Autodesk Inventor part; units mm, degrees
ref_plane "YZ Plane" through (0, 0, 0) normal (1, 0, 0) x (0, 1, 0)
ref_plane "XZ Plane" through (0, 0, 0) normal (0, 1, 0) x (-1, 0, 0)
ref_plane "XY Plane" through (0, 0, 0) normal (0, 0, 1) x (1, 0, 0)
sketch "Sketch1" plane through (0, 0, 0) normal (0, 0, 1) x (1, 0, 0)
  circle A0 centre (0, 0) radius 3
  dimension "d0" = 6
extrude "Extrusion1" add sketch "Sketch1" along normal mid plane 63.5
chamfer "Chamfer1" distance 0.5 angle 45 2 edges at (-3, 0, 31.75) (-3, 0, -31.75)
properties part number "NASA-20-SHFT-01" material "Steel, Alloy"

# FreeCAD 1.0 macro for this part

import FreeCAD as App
import Part
import Sketcher
from FreeCAD import Vector
Q = App.Units.Quantity


def edges_at(feature, points):
    """Names of the edges that pass closest to the given points."""
    edges = feature.Shape.Edges
    near = lambda p: min(range(len(edges)), key=lambda i: edges[i].distToShape(Part.Vertex(*p))[0])
    return sorted({f"Edge{near(p) + 1}" for p in points})

doc = App.newDocument("Part")
params = doc.addObject("Spreadsheet::Sheet", "Params")
for row, (alias, value) in enumerate([
    ("sketch1_diameter", "6 mm"),
    ("pad1_length", "63.5 mm"),
    ("chamfer_size", "0.5 mm"),
], start=1):
    params.set(f"A{row}", alias)
    params.set(f"B{row}", "=" + value)
    params.setAlias(f"B{row}", alias)

body = doc.addObject("PartDesign::Body", "Body")

sketch1 = body.newObject("Sketcher::SketchObject", "Sketch")
sketch1.AttachmentSupport = (doc.getObject("XY_Plane"), [""])
sketch1.MapMode = "FlatFace"
sketch1.addGeometry(Part.Circle(Vector(0, 0, 0), Vector(0, 0, 1), 3), False)
sketch1.addConstraint([
    Sketcher.Constraint("Coincident", 0, 3, -1, 1),
    Sketcher.Constraint("Diameter", 0, Q("6 mm")),
])
sketch1.setExpression("Constraints[1]", "Params.sketch1_diameter")
pad1 = body.newObject("PartDesign::Pad", "Pad")
pad1.Profile = sketch1
pad1.setExpression("Length", "Params.pad1_length")
pad1.Midplane = True
doc.recompute()

chamfer = body.newObject("PartDesign::Chamfer", "Chamfer")
chamfer.Base = (pad1, edges_at(pad1, [(-3, 0, 31.75), (-3, 0, -31.75)]))
chamfer.setExpression("Size", "Params.chamfer_size")

doc.recompute()
